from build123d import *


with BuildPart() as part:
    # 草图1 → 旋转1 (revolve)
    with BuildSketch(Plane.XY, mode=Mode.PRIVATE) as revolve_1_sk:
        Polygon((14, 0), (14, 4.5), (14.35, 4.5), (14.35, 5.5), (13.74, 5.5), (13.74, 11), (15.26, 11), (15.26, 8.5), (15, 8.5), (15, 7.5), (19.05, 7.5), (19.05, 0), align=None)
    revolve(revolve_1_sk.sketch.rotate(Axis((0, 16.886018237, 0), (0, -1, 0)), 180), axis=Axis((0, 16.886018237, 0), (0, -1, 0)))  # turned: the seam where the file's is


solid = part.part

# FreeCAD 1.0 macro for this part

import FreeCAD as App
import Part
import Sketcher
Q = App.Units.Quantity


def add_polygon(sketch, points):
    """Adds a closed chain of lines whose ends are joined by coincident constraints."""
    first, n = sketch.GeometryCount, len(points)
    for a, b in zip(points, points[1:] + points[:1]):
        sketch.addGeometry(Part.LineSegment(App.Vector(*a, 0), App.Vector(*b, 0)), False)
    for i in range(n):
        sketch.addConstraint(Sketcher.Constraint("Coincident", first + i, 2, first + (i + 1) % n, 1))

doc = App.newDocument("Part")
params = doc.addObject("Spreadsheet::Sheet", "Params")
for row, (alias, value) in enumerate([
    ("sketch1_height", "1 mm"),
    ("sketch1_height2", "4.5 mm"),
    ("sketch1_height3", "7.5 mm"),
    ("sketch1_height4", "2.5 mm"),
    ("sketch1_width", "5.05 mm"),
    ("revolution_angle", "360 deg"),
], start=1):
    params.set(f"A{row}", alias)
    params.set(f"B{row}", "=" + value)
    params.setAlias(f"B{row}", alias)

body = doc.addObject("PartDesign::Body", "Body")

# Sketch on XY plane
sketch1 = body.newObject("Sketcher::SketchObject", "Sketch")
sketch1.AttachmentSupport = (doc.getObject("XY_Plane"), [""])
sketch1.MapMode = "FlatFace"
add_polygon(sketch1, [(14, 4.5), (14, 0), (19.05, 0), (19.05, 7.5), (15, 7.5), (15, 8.5), (15.26, 8.5), (15.26, 11), (13.74, 11), (13.74, 5.5), (14.35, 5.5), (14.35, 4.5)])  # lines 0-11
sketch1.addConstraint([
    Sketcher.Constraint("Vertical", 0),
    Sketcher.Constraint("Horizontal", 1),
    Sketcher.Constraint("Vertical", 2),
    Sketcher.Constraint("Horizontal", 3),
    Sketcher.Constraint("Vertical", 4),
    Sketcher.Constraint("Horizontal", 5),
    Sketcher.Constraint("Vertical", 6),
    Sketcher.Constraint("Horizontal", 7),
    Sketcher.Constraint("Vertical", 8),
    Sketcher.Constraint("Horizontal", 9),
    Sketcher.Constraint("Vertical", 10),
    Sketcher.Constraint("Horizontal", 11),
    Sketcher.Constraint("PointOnObject", 0, 2, -1),
    Sketcher.Constraint("Equal", 4, 10),
    Sketcher.Constraint("DistanceY", 4, 1, 4, 2, Q("1 mm")),
    Sketcher.Constraint("DistanceY", 0, 2, 0, 1, Q("4.5 mm")),
    Sketcher.Constraint("DistanceY", 2, 1, 2, 2, Q("7.5 mm")),
    Sketcher.Constraint("DistanceY", 6, 1, 6, 2, Q("2.5 mm")),
    Sketcher.Constraint("DistanceX", -1, 1, 0, 2, Q("14 mm")),
    Sketcher.Constraint("DistanceX", -1, 1, 3, 2, Q("15 mm")),
    Sketcher.Constraint("DistanceX", 1, 1, 1, 2, Q("5.05 mm")),
    Sketcher.Constraint("DistanceX", 5, 1, 5, 2, Q("0.26 mm")),
    Sketcher.Constraint("DistanceX", 7, 2, 7, 1, Q("1.52 mm")),
    Sketcher.Constraint("DistanceX", 9, 1, 9, 2, Q("0.61 mm")),
])
sketch1.setExpression("Constraints[26]", "Params.sketch1_height")
sketch1.setExpression("Constraints[27]", "Params.sketch1_height2")
sketch1.setExpression("Constraints[28]", "Params.sketch1_height3")
sketch1.setExpression("Constraints[29]", "Params.sketch1_height4")
sketch1.setExpression("Constraints[32]", "Params.sketch1_width")
revolution = body.newObject("PartDesign::Revolution", "Revolution")
revolution.Profile = sketch1
revolution.ReferenceAxis = (sketch1, ["V_Axis"])
revolution.setExpression("Angle", "Params.revolution_angle")

doc.recompute()
